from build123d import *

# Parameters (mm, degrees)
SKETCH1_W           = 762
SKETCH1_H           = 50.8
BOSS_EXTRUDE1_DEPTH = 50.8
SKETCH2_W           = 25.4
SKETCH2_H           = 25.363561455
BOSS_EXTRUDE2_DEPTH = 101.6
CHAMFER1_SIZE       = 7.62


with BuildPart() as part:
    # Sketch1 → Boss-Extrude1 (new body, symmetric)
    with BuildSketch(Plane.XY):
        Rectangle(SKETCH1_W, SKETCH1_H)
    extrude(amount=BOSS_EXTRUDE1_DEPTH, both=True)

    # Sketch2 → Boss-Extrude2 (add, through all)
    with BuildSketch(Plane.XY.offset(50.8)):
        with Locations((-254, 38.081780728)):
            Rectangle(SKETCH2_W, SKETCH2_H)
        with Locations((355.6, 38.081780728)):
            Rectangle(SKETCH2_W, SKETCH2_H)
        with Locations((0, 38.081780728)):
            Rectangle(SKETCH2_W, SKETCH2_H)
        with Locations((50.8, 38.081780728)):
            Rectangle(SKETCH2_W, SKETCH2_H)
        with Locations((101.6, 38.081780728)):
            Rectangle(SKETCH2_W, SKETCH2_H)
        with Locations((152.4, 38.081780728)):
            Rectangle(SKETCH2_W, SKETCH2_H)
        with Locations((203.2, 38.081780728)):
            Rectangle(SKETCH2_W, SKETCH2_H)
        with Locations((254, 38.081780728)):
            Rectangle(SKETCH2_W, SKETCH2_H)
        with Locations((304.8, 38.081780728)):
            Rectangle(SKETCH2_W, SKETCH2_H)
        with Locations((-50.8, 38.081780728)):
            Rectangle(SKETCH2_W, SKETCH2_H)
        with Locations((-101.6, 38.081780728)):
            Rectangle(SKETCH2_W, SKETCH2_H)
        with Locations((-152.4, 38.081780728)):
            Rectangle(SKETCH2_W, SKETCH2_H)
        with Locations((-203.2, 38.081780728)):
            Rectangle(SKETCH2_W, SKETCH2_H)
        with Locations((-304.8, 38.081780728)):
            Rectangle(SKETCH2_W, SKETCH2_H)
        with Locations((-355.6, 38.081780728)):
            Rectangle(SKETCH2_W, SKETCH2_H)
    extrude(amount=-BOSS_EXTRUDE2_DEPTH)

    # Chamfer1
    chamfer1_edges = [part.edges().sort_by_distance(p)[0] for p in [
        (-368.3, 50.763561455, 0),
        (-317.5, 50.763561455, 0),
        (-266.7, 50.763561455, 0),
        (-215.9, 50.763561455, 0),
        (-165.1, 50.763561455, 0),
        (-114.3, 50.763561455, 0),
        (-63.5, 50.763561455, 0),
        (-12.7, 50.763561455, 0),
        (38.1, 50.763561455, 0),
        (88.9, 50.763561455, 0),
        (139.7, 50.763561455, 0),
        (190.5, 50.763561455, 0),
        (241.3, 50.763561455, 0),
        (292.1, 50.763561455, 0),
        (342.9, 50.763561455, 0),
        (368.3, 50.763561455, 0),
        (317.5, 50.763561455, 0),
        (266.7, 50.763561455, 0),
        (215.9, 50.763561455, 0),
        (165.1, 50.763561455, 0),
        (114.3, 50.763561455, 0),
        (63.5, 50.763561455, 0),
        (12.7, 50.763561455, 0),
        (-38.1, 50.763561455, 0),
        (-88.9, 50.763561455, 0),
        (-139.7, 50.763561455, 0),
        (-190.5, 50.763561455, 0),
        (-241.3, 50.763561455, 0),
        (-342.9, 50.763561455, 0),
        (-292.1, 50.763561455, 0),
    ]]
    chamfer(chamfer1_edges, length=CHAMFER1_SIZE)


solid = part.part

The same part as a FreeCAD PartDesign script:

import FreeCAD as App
import Part
import Sketcher

V = App.Vector
Q = App.Units.Quantity


def edges_at(feature, points):
    """Names of the edges that pass closest to the given points."""
    edges = feature.Shape.Edges
    near = lambda p: min(range(len(edges)), key=lambda i: edges[i].distToShape(Part.Vertex(*p))[0])
    return sorted({f"Edge{near(p) + 1}" for p in points})


def add_polygon(sketch, points):
    """Adds a closed chain of lines whose ends are joined by coincident constraints."""
    first, n = sketch.GeometryCount, len(points)
    for a, b in zip(points, points[1:] + points[:1]):
        sketch.addGeometry(Part.LineSegment(App.Vector(*a, 0), App.Vector(*b, 0)), False)
    for i in range(n):
        sketch.addConstraint(Sketcher.Constraint("Coincident", first + i, 2, first + (i + 1) % n, 1))

doc = App.newDocument("Part")
body = doc.addObject("PartDesign::Body", "Body")

# Sketch on XY plane
sketch1 = doc.addObject("Sketcher::SketchObject", "Sketch")
body.addObject(sketch1)
sketch1.AttachmentSupport = (doc.XY_Plane, [""])
sketch1.MapMode = "FlatFace"
add_polygon(sketch1, [(-381, 25.4), (-381, -25.4), (381, -25.4), (381, 25.4)])  # lines 0-3
sketch1.addConstraint(Sketcher.Constraint("Vertical", 0))
sketch1.addConstraint(Sketcher.Constraint("Horizontal", 1))
sketch1.addConstraint(Sketcher.Constraint("Vertical", 2))
sketch1.addConstraint(Sketcher.Constraint("Horizontal", 3))
sketch1.addConstraint(Sketcher.Constraint("Symmetric", 0, 2, 2, 2, -1, 1))
sketch1.addConstraint(Sketcher.Constraint("DistanceX", 1, 1, 1, 2, Q("30 in")))
sketch1.addConstraint(Sketcher.Constraint("DistanceY", 0, 2, 0, 1, Q("2 in")))
pad1 = doc.addObject("PartDesign::Pad", "Pad")
body.addObject(pad1)
pad1.Profile = sketch1
pad1.Length = Q("4 in")
pad1.Midplane = True

# Sketch on XY plane
sketch2 = doc.addObject("Sketcher::SketchObject", "Sketch001")
body.addObject(sketch2)
sketch2.AttachmentSupport = (doc.XY_Plane, [""])
sketch2.MapMode = "FlatFace"
sketch2.AttachmentOffset = App.Placement(V(0, 0, 2 * 25.4), App.Rotation())
add_polygon(sketch2, [(-266.7, 50.763561), (-266.7, 25.4), (-241.3, 25.4), (-241.3, 50.763561)])  # lines 0-3
add_polygon(sketch2, [(342.9, 50.763561), (342.9, 25.4), (368.3, 25.4), (368.3, 50.763561)])  # lines 4-7
add_polygon(sketch2, [(-12.7, 50.763561), (-12.7, 25.4), (12.7, 25.4), (12.7, 50.763561)])  # lines 8-11
add_polygon(sketch2, [(38.1, 50.763561), (38.1, 25.4), (63.5, 25.4), (63.5, 50.763561)])  # lines 12-15
add_polygon(sketch2, [(88.9, 50.763561), (88.9, 25.4), (114.3, 25.4), (114.3, 50.763561)])  # lines 16-19
add_polygon(sketch2, [(139.7, 50.763561), (139.7, 25.4), (165.1, 25.4), (165.1, 50.763561)])  # lines 20-23
add_polygon(sketch2, [(190.5, 50.763561), (190.5, 25.4), (215.9, 25.4), (215.9, 50.763561)])  # lines 24-27
add_polygon(sketch2, [(241.3, 50.763561), (241.3, 25.4), (266.7, 25.4), (266.7, 50.763561)])  # lines 28-31
add_polygon(sketch2, [(292.1, 50.763561), (292.1, 25.4), (317.5, 25.4), (317.5, 50.763561)])  # lines 32-35
add_polygon(sketch2, [(-63.5, 50.763561), (-63.5, 25.4), (-38.1, 25.4), (-38.1, 50.763561)])  # lines 36-39
add_polygon(sketch2, [(-114.3, 50.763561), (-114.3, 25.4), (-88.9, 25.4), (-88.9, 50.763561)])  # lines 40-43
add_polygon(sketch2, [(-165.1, 50.763561), (-165.1, 25.4), (-139.7, 25.4), (-139.7, 50.763561)])  # lines 44-47
add_polygon(sketch2, [(-215.9, 50.763561), (-215.9, 25.4), (-190.5, 25.4), (-190.5, 50.763561)])  # lines 48-51
add_polygon(sketch2, [(-317.5, 50.763561), (-317.5, 25.4), (-292.1, 25.4), (-292.1, 50.763561)])  # lines 52-55
add_polygon(sketch2, [(-368.3, 50.763561), (-368.3, 25.4), (-342.9, 25.4), (-342.9, 50.763561)])  # lines 56-59
sketch2.addConstraint(Sketcher.Constraint("Vertical", 0))
sketch2.addConstraint(Sketcher.Constraint("Horizontal", 1))
sketch2.addConstraint(Sketcher.Constraint("Vertical", 2))
sketch2.addConstraint(Sketcher.Constraint("Horizontal", 3))
sketch2.addConstraint(Sketcher.Constraint("Vertical", 4))
sketch2.addConstraint(Sketcher.Constraint("Horizontal", 5))
sketch2.addConstraint(Sketcher.Constraint("Vertical", 6))
sketch2.addConstraint(Sketcher.Constraint("Horizontal", 7))
sketch2.addConstraint(Sketcher.Constraint("Vertical", 8))
sketch2.addConstraint(Sketcher.Constraint("Horizontal", 9))
sketch2.addConstraint(Sketcher.Constraint("Vertical", 10))
sketch2.addConstraint(Sketcher.Constraint("Horizontal", 11))
sketch2.addConstraint(Sketcher.Constraint("Vertical", 12))
sketch2.addConstraint(Sketcher.Constraint("Horizontal", 13))
sketch2.addConstraint(Sketcher.Constraint("Vertical", 14))
sketch2.addConstraint(Sketcher.Constraint("Horizontal", 15))
sketch2.addConstraint(Sketcher.Constraint("Vertical", 16))
sketch2.addConstraint(Sketcher.Constraint("Horizontal", 17))
sketch2.addConstraint(Sketcher.Constraint("Vertical", 18))
sketch2.addConstraint(Sketcher.Constraint("Horizontal", 19))
sketch2.addConstraint(Sketcher.Constraint("Vertical", 20))
sketch2.addConstraint(Sketcher.Constraint("Horizontal", 21))
sketch2.addConstraint(Sketcher.Constraint("Vertical", 22))
sketch2.addConstraint(Sketcher.Constraint("Horizontal", 23))
sketch2.addConstraint(Sketcher.Constraint("Vertical", 24))
sketch2.addConstraint(Sketcher.Constraint("Horizontal", 25))
sketch2.addConstraint(Sketcher.Constraint("Vertical", 26))
sketch2.addConstraint(Sketcher.Constraint("Horizontal", 27))
sketch2.addConstraint(Sketcher.Constraint("Vertical", 28))
sketch2.addConstraint(Sketcher.Constraint("Horizontal", 29))
sketch2.addConstraint(Sketcher.Constraint("Vertical", 30))
sketch2.addConstraint(Sketcher.Constraint("Horizontal", 31))
sketch2.addConstraint(Sketcher.Constraint("Vertical", 32))
sketch2.addConstraint(Sketcher.Constraint("Horizontal", 33))
sketch2.addConstraint(Sketcher.Constraint("Vertical", 34))
sketch2.addConstraint(Sketcher.Constraint("Horizontal", 35))
sketch2.addConstraint(Sketcher.Constraint("Vertical", 36))
sketch2.addConstraint(Sketcher.Constraint("Horizontal", 37))
sketch2.addConstraint(Sketcher.Constraint("Vertical", 38))
sketch2.addConstraint(Sketcher.Constraint("Horizontal", 39))
sketch2.addConstraint(Sketcher.Constraint("Vertical", 40))
sketch2.addConstraint(Sketcher.Constraint("Horizontal", 41))
sketch2.addConstraint(Sketcher.Constraint("Vertical", 42))
sketch2.addConstraint(Sketcher.Constraint("Horizontal", 43))
sketch2.addConstraint(Sketcher.Constraint("Vertical", 44))
sketch2.addConstraint(Sketcher.Constraint("Horizontal", 45))
sketch2.addConstraint(Sketcher.Constraint("Vertical", 46))
sketch2.addConstraint(Sketcher.Constraint("Horizontal", 47))
sketch2.addConstraint(Sketcher.Constraint("Vertical", 48))
sketch2.addConstraint(Sketcher.Constraint("Horizontal", 49))
sketch2.addConstraint(Sketcher.Constraint("Vertical", 50))
sketch2.addConstraint(Sketcher.Constraint("Horizontal", 51))
sketch2.addConstraint(Sketcher.Constraint("Vertical", 52))
sketch2.addConstraint(Sketcher.Constraint("Horizontal", 53))
sketch2.addConstraint(Sketcher.Constraint("Vertical", 54))
sketch2.addConstraint(Sketcher.Constraint("Horizontal", 55))
sketch2.addConstraint(Sketcher.Constraint("Vertical", 56))
sketch2.addConstraint(Sketcher.Constraint("Horizontal", 57))
sketch2.addConstraint(Sketcher.Constraint("Vertical", 58))
sketch2.addConstraint(Sketcher.Constraint("Horizontal", 59))
sketch2.addConstraint(Sketcher.Constraint("Symmetric", 1, 2, 28, 2, -2))
sketch2.addConstraint(Sketcher.Constraint("Symmetric", 3, 2, 30, 2, -2))
sketch2.addConstraint(Sketcher.Constraint("Symmetric", 13, 2, 36, 2, -2))
sketch2.addConstraint(Sketcher.Constraint("Symmetric", 15, 2, 38, 2, -2))
sketch2.addConstraint(Sketcher.Constraint("Symmetric", 17, 2, 40, 2, -2))
sketch2.addConstraint(Sketcher.Constraint("Symmetric", 19, 2, 42, 2, -2))
sketch2.addConstraint(Sketcher.Constraint("Symmetric", 21, 2, 44, 2, -2))
sketch2.addConstraint(Sketcher.Constraint("Symmetric", 23, 2, 46, 2, -2))
sketch2.addConstraint(Sketcher.Constraint("Symmetric", 25, 2, 48, 2, -2))
sketch2.addConstraint(Sketcher.Constraint("Symmetric", 27, 2, 50, 2, -2))
sketch2.addConstraint(Sketcher.Constraint("Symmetric", 33, 2, 52, 2, -2))
sketch2.addConstraint(Sketcher.Constraint("Symmetric", 35, 2, 54, 2, -2))
sketch2.addConstraint(Sketcher.Constraint("Symmetric", 5, 2, 56, 2, -2))
sketch2.addConstraint(Sketcher.Constraint("Symmetric", 7, 2, 58, 2, -2))
sketch2.addConstraint(Sketcher.Constraint("Horizontal", 1, 2, 4, 2))
sketch2.addConstraint(Sketcher.Constraint("Horizontal", 3, 2, 6, 2))
sketch2.addConstraint(Sketcher.Constraint("Horizontal", 5, 2, 8, 2))
sketch2.addConstraint(Sketcher.Constraint("Horizontal", 7, 2, 10, 2))
sketch2.addConstraint(Sketcher.Constraint("Horizontal", 9, 2, 12, 2))
sketch2.addConstraint(Sketcher.Constraint("Horizontal", 11, 2, 14, 2))
sketch2.addConstraint(Sketcher.Constraint("Horizontal", 13, 2, 16, 2))
sketch2.addConstraint(Sketcher.Constraint("Horizontal", 15, 2, 18, 2))
sketch2.addConstraint(Sketcher.Constraint("Horizontal", 17, 2, 20, 2))
sketch2.addConstraint(Sketcher.Constraint("Horizontal", 19, 2, 22, 2))
sketch2.addConstraint(Sketcher.Constraint("Horizontal", 21, 2, 24, 2))
sketch2.addConstraint(Sketcher.Constraint("Horizontal", 23, 2, 26, 2))
sketch2.addConstraint(Sketcher.Constraint("Horizontal", 29, 2, 32, 2))
sketch2.addConstraint(Sketcher.Constraint("Horizontal", 31, 2, 34, 2))
sketch2.addConstraint(Sketcher.Constraint("Equal", 3, 5))
sketch2.addConstraint(Sketcher.Constraint("Equal", 7, 9))
sketch2.addConstraint(Sketcher.Constraint("Equal", 11, 13))
sketch2.addConstraint(Sketcher.Constraint("Equal", 15, 17))
sketch2.addConstraint(Sketcher.Constraint("Equal", 19, 21))
sketch2.addConstraint(Sketcher.Constraint("Equal", 23, 25))
sketch2.addConstraint(Sketcher.Constraint("Equal", 31, 33))
sketch2.addConstraint(Sketcher.Constraint("DistanceX", 1, 1, 1, 2, Q("1 in")))
sketch2.addConstraint(Sketcher.Constraint("DistanceY", -1, 1, 0, 2, Q("1 in")))
sketch2.addConstraint(Sketcher.Constraint("DistanceX", 1, 2, 4, 2, Q("23 in")))
sketch2.addConstraint(Sketcher.Constraint("DistanceX", 1, 2, 8, 2, Q("9 in")))
sketch2.addConstraint(Sketcher.Constraint("DistanceX", 9, 2, 12, 2, Q("1 in")))
sketch2.addConstraint(Sketcher.Constraint("DistanceX", 13, 2, 16, 2, Q("1 in")))
sketch2.addConstraint(Sketcher.Constraint("DistanceX", 17, 2, 20, 2, Q("1 in")))
sketch2.addConstraint(Sketcher.Constraint("DistanceX", 21, 2, 24, 2, Q("1 in")))
sketch2.addConstraint(Sketcher.Constraint("DistanceX", 25, 2, 28, 2, Q("1 in")))
sketch2.addConstraint(Sketcher.Constraint("DistanceX", 29, 2, 32, 2, Q("1 in")))
sketch2.addConstraint(Sketcher.Constraint("DistanceY", 0, 2, 0, 1, 25.363561))
pad2 = doc.addObject("PartDesign::Pad", "Pad001")
body.addObject(pad2)
pad2.Profile = sketch2
pad2.Length = Q("4 in")
pad2.Reversed = True
doc.recompute()

chamfer = doc.addObject("PartDesign::Chamfer", "Chamfer")
body.addObject(chamfer)
chamfer.Base = (pad2, edges_at(pad2, [
    (-368.3, 50.764, 0),
    (-317.5, 50.764, 0),
    (-266.7, 50.764, 0),
    (-215.9, 50.764, 0),
    (-165.1, 50.764, 0),
    (-114.3, 50.764, 0),
    (-63.5, 50.764, 0),
    (-12.7, 50.764, 0),
    (38.1, 50.764, 0),
    (88.9, 50.764, 0),
    (139.7, 50.764, 0),
    (190.5, 50.764, 0),
    (241.3, 50.764, 0),
    (292.1, 50.764, 0),
    (342.9, 50.764, 0),
    (368.3, 50.764, 0),
    (317.5, 50.764, 0),
    (266.7, 50.764, 0),
    (215.9, 50.764, 0),
    (165.1, 50.764, 0),
    (114.3, 50.764, 0),
    (63.5, 50.764, 0),
    (12.7, 50.764, 0),
    (-38.1, 50.764, 0),
    (-88.9, 50.764, 0),
    (-139.7, 50.764, 0),
    (-190.5, 50.764, 0),
    (-241.3, 50.764, 0),
    (-342.9, 50.764, 0),
    (-292.1, 50.764, 0),
]))
chamfer.Size = Q("0.3 in")

doc.recompute()
